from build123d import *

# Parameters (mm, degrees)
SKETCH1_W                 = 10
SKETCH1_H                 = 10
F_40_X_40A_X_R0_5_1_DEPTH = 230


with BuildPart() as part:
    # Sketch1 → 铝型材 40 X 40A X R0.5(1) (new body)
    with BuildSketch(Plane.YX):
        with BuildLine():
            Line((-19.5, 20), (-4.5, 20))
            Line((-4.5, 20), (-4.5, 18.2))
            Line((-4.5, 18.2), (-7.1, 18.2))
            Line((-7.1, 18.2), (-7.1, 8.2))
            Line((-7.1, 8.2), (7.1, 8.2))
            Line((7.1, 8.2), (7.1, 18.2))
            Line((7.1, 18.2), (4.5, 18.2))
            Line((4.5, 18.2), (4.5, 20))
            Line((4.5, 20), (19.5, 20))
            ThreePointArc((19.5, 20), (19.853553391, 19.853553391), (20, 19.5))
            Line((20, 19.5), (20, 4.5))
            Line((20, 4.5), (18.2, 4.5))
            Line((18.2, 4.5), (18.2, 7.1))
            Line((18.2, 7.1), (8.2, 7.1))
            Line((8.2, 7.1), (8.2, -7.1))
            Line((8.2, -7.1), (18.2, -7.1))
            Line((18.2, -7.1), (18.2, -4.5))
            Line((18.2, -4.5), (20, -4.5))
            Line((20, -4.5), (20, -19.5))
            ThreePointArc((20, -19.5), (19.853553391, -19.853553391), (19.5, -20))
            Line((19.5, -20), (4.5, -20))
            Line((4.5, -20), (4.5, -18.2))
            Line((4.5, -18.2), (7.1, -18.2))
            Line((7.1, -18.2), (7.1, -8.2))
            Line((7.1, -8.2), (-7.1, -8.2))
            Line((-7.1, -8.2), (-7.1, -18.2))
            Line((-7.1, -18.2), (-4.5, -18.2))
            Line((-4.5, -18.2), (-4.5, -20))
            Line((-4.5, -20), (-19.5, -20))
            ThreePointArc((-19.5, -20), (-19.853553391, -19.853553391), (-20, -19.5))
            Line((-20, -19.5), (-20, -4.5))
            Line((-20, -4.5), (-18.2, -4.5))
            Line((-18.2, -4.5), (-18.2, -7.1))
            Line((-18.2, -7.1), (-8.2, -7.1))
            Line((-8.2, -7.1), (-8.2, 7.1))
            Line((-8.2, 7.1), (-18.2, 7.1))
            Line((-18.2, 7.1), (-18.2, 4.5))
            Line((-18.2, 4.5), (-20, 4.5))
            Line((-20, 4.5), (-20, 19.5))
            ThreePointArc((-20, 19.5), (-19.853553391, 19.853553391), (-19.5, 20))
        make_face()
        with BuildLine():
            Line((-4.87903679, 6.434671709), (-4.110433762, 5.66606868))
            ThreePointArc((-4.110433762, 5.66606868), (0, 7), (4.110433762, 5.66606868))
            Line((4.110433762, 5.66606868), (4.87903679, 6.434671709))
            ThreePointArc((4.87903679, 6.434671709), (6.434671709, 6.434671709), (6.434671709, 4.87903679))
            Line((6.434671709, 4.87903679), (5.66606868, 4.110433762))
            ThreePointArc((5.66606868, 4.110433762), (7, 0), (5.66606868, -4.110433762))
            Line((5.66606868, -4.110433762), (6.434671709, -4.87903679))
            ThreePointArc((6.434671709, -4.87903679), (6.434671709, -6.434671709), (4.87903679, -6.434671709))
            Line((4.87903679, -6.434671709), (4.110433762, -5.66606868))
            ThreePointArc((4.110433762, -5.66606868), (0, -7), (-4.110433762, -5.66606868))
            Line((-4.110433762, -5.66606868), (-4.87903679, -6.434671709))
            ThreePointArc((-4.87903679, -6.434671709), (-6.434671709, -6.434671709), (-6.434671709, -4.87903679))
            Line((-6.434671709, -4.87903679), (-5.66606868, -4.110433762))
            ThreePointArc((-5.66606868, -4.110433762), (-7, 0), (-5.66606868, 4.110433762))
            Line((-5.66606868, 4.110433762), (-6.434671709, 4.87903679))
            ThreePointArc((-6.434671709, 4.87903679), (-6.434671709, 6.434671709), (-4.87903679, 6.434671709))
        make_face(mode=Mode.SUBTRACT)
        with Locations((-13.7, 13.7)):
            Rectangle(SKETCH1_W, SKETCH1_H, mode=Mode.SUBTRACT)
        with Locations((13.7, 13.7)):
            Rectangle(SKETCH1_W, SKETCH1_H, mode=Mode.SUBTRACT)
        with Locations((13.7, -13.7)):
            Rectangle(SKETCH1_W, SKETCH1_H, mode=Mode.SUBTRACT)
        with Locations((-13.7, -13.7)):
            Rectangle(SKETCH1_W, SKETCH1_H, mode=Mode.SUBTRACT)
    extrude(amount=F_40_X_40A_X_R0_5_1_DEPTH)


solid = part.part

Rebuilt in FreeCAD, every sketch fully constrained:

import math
import FreeCAD as App
import Part
import Sketcher


def add_polygon(sketch, points):
    """Adds a closed chain of lines whose ends are joined by coincident constraints."""
    first, n = sketch.GeometryCount, len(points)
    for a, b in zip(points, points[1:] + points[:1]):
        sketch.addGeometry(Part.LineSegment(App.Vector(*a, 0), App.Vector(*b, 0)), False)
    for i in range(n):
        sketch.addConstraint(Sketcher.Constraint("Coincident", first + i, 2, first + (i + 1) % n, 1))

doc = App.newDocument("Part")
params = doc.addObject("Spreadsheet::Sheet", "Params")
for row, (alias, value) in enumerate([
    ("sketch1_radius", "7 mm"),
    ("sketch1_radius2", "0.5 mm"),
    ("sketch1_radius3", "1.1 mm"),
    ("sketch1_width", "15 mm"),
    ("sketch1_width2", "10 mm"),
    ("pad1_length", "230 mm"),
], start=1):
    params.set(f"A{row}", alias)
    params.set(f"B{row}", "=" + value)
    params.setAlias(f"B{row}", alias)

body = doc.addObject("PartDesign::Body", "Body")

# Sketch on XY plane
sketch1 = doc.addObject("Sketcher::SketchObject", "Sketch")
body.addObject(sketch1)
sketch1.AttachmentSupport = (doc.XY_Plane, [""])
sketch1.MapMode = "FlatFace"
sketch1.addGeometry(Part.LineSegment(App.Vector(20, -4.5, 0), App.Vector(20, -19.5, 0)), False)  # 0
sketch1.addGeometry(Part.ArcOfCircle(Part.Circle(App.Vector(19.5, -19.5, 0), App.Vector(0, 0, 1), 0.5), math.radians(-90), math.radians(0)), False)  # 1
sketch1.addGeometry(Part.LineSegment(App.Vector(19.5, -20, 0), App.Vector(4.5, -20, 0)), False)  # 2
sketch1.addGeometry(Part.LineSegment(App.Vector(4.5, -20, 0), App.Vector(4.5, -18.2, 0)), False)  # 3
sketch1.addGeometry(Part.LineSegment(App.Vector(4.5, -18.2, 0), App.Vector(7.1, -18.2, 0)), False)  # 4
sketch1.addGeometry(Part.LineSegment(App.Vector(7.1, -18.2, 0), App.Vector(7.1, -8.2, 0)), False)  # 5
sketch1.addGeometry(Part.LineSegment(App.Vector(7.1, -8.2, 0), App.Vector(-7.1, -8.2, 0)), False)  # 6
sketch1.addGeometry(Part.LineSegment(App.Vector(-7.1, -8.2, 0), App.Vector(-7.1, -18.2, 0)), False)  # 7
sketch1.addGeometry(Part.LineSegment(App.Vector(-7.1, -18.2, 0), App.Vector(-4.5, -18.2, 0)), False)  # 8
sketch1.addGeometry(Part.LineSegment(App.Vector(-4.5, -18.2, 0), App.Vector(-4.5, -20, 0)), False)  # 9
sketch1.addGeometry(Part.LineSegment(App.Vector(-4.5, -20, 0), App.Vector(-19.5, -20, 0)), False)  # 10
sketch1.addGeometry(Part.ArcOfCircle(Part.Circle(App.Vector(-19.5, -19.5, 0), App.Vector(0, 0, 1), 0.5), math.radians(180), math.radians(270)), False)  # 11
sketch1.addGeometry(Part.LineSegment(App.Vector(-20, -19.5, 0), App.Vector(-20, -4.5, 0)), False)  # 12
sketch1.addGeometry(Part.LineSegment(App.Vector(-20, -4.5, 0), App.Vector(-18.2, -4.5, 0)), False)  # 13
sketch1.addGeometry(Part.LineSegment(App.Vector(-18.2, -4.5, 0), App.Vector(-18.2, -7.1, 0)), False)  # 14
sketch1.addGeometry(Part.LineSegment(App.Vector(-18.2, -7.1, 0), App.Vector(-8.2, -7.1, 0)), False)  # 15
sketch1.addGeometry(Part.LineSegment(App.Vector(-8.2, -7.1, 0), App.Vector(-8.2, 7.1, 0)), False)  # 16
sketch1.addGeometry(Part.LineSegment(App.Vector(-8.2, 7.1, 0), App.Vector(-18.2, 7.1, 0)), False)  # 17
sketch1.addGeometry(Part.LineSegment(App.Vector(-18.2, 7.1, 0), App.Vector(-18.2, 4.5, 0)), False)  # 18
sketch1.addGeometry(Part.LineSegment(App.Vector(-18.2, 4.5, 0), App.Vector(-20, 4.5, 0)), False)  # 19
sketch1.addGeometry(Part.LineSegment(App.Vector(-20, 4.5, 0), App.Vector(-20, 19.5, 0)), False)  # 20
sketch1.addGeometry(Part.ArcOfCircle(Part.Circle(App.Vector(-19.5, 19.5, 0), App.Vector(0, 0, 1), 0.5), math.radians(90), math.radians(180)), False)  # 21
sketch1.addGeometry(Part.LineSegment(App.Vector(-19.5, 20, 0), App.Vector(-4.5, 20, 0)), False)  # 22
sketch1.addGeometry(Part.LineSegment(App.Vector(-4.5, 20, 0), App.Vector(-4.5, 18.2, 0)), False)  # 23
sketch1.addGeometry(Part.LineSegment(App.Vector(-4.5, 18.2, 0), App.Vector(-7.1, 18.2, 0)), False)  # 24
sketch1.addGeometry(Part.LineSegment(App.Vector(-7.1, 18.2, 0), App.Vector(-7.1, 8.2, 0)), False)  # 25
sketch1.addGeometry(Part.LineSegment(App.Vector(-7.1, 8.2, 0), App.Vector(7.1, 8.2, 0)), False)  # 26
sketch1.addGeometry(Part.LineSegment(App.Vector(7.1, 8.2, 0), App.Vector(7.1, 18.2, 0)), False)  # 27
sketch1.addGeometry(Part.LineSegment(App.Vector(7.1, 18.2, 0), App.Vector(4.5, 18.2, 0)), False)  # 28
sketch1.addGeometry(Part.LineSegment(App.Vector(4.5, 18.2, 0), App.Vector(4.5, 20, 0)), False)  # 29
sketch1.addGeometry(Part.LineSegment(App.Vector(4.5, 20, 0), App.Vector(19.5, 20, 0)), False)  # 30
sketch1.addGeometry(Part.ArcOfCircle(Part.Circle(App.Vector(19.5, 19.5, 0), App.Vector(0, 0, 1), 0.5), math.radians(0), math.radians(90)), False)  # 31
sketch1.addGeometry(Part.LineSegment(App.Vector(20, 19.5, 0), App.Vector(20, 4.5, 0)), False)  # 32
sketch1.addGeometry(Part.LineSegment(App.Vector(20, 4.5, 0), App.Vector(18.2, 4.5, 0)), False)  # 33
sketch1.addGeometry(Part.LineSegment(App.Vector(18.2, 4.5, 0), App.Vector(18.2, 7.1, 0)), False)  # 34
sketch1.addGeometry(Part.LineSegment(App.Vector(18.2, 7.1, 0), App.Vector(8.2, 7.1, 0)), False)  # 35
sketch1.addGeometry(Part.LineSegment(App.Vector(8.2, 7.1, 0), App.Vector(8.2, -7.1, 0)), False)  # 36
sketch1.addGeometry(Part.LineSegment(App.Vector(8.2, -7.1, 0), App.Vector(18.2, -7.1, 0)), False)  # 37
sketch1.addGeometry(Part.LineSegment(App.Vector(18.2, -7.1, 0), App.Vector(18.2, -4.5, 0)), False)  # 38
sketch1.addGeometry(Part.LineSegment(App.Vector(18.2, -4.5, 0), App.Vector(20, -4.5, 0)), False)  # 39
add_polygon(sketch1, [(-18.7, 8.7), (-8.7, 8.7), (-8.7, 18.7), (-18.7, 18.7)])  # lines 40-43
sketch1.addGeometry(Part.LineSegment(App.Vector(6.43, -4.88, 0), App.Vector(5.67, -4.11, 0)), False)  # 44
sketch1.addGeometry(Part.ArcOfCircle(Part.Circle(App.Vector(0, 0, 0), App.Vector(0, 0, 1), 7), math.radians(-36), math.radians(36)), False)  # 45
sketch1.addGeometry(Part.LineSegment(App.Vector(5.67, 4.11, 0), App.Vector(6.43, 4.88, 0)), False)  # 46
sketch1.addGeometry(Part.ArcOfCircle(Part.Circle(App.Vector(5.66, 5.66, 0), App.Vector(0, 0, 1), 1.1), math.radians(-45), math.radians(135)), False)  # 47
sketch1.addGeometry(Part.LineSegment(App.Vector(4.88, 6.43, 0), App.Vector(4.11, 5.67, 0)), False)  # 48
sketch1.addGeometry(Part.ArcOfCircle(Part.Circle(App.Vector(0, 0, 0), App.Vector(0, 0, 1), 7), math.radians(54), math.radians(126)), False)  # 49
sketch1.addGeometry(Part.LineSegment(App.Vector(-4.11, 5.67, 0), App.Vector(-4.88, 6.43, 0)), False)  # 50
sketch1.addGeometry(Part.ArcOfCircle(Part.Circle(App.Vector(-5.66, 5.66, 0), App.Vector(0, 0, 1), 1.1), math.radians(45), math.radians(225)), False)  # 51
sketch1.addGeometry(Part.LineSegment(App.Vector(-6.43, 4.88, 0), App.Vector(-5.67, 4.11, 0)), False)  # 52
sketch1.addGeometry(Part.ArcOfCircle(Part.Circle(App.Vector(0, 0, 0), App.Vector(0, 0, 1), 7), math.radians(144), math.radians(216)), False)  # 53
sketch1.addGeometry(Part.LineSegment(App.Vector(-5.67, -4.11, 0), App.Vector(-6.43, -4.88, 0)), False)  # 54
sketch1.addGeometry(Part.ArcOfCircle(Part.Circle(App.Vector(-5.66, -5.66, 0), App.Vector(0, 0, 1), 1.1), math.radians(135), math.radians(315)), False)  # 55
sketch1.addGeometry(Part.LineSegment(App.Vector(-4.88, -6.43, 0), App.Vector(-4.11, -5.67, 0)), False)  # 56
sketch1.addGeometry(Part.ArcOfCircle(Part.Circle(App.Vector(0, 0, 0), App.Vector(0, 0, 1), 7), math.radians(-126), math.radians(-54)), False)  # 57
sketch1.addGeometry(Part.LineSegment(App.Vector(4.11, -5.67, 0), App.Vector(4.88, -6.43, 0)), False)  # 58
sketch1.addGeometry(Part.ArcOfCircle(Part.Circle(App.Vector(5.66, -5.66, 0), App.Vector(0, 0, 1), 1.1), math.radians(-135), math.radians(45)), False)  # 59
add_polygon(sketch1, [(-18.7, -18.7), (-8.7, -18.7), (-8.7, -8.7), (-18.7, -8.7)])  # lines 60-63
add_polygon(sketch1, [(8.7, 8.7), (18.7, 8.7), (18.7, 18.7), (8.7, 18.7)])  # lines 64-67
add_polygon(sketch1, [(8.7, -18.7), (18.7, -18.7), (18.7, -8.7), (8.7, -8.7)])  # lines 68-71
sketch1.addConstraint(Sketcher.Constraint("Tangent", 0, 2, 1, 2))
sketch1.addConstraint(Sketcher.Constraint("Tangent", 1, 1, 2, 1))
sketch1.addConstraint(Sketcher.Constraint("Coincident", 2, 2, 3, 1))
sketch1.addConstraint(Sketcher.Constraint("Coincident", 3, 2, 4, 1))
sketch1.addConstraint(Sketcher.Constraint("Coincident", 4, 2, 5, 1))
sketch1.addConstraint(Sketcher.Constraint("Coincident", 5, 2, 6, 1))
sketch1.addConstraint(Sketcher.Constraint("Coincident", 6, 2, 7, 1))
sketch1.addConstraint(Sketcher.Constraint("Coincident", 7, 2, 8, 1))
sketch1.addConstraint(Sketcher.Constraint("Coincident", 8, 2, 9, 1))
sketch1.addConstraint(Sketcher.Constraint("Coincident", 9, 2, 10, 1))
sketch1.addConstraint(Sketcher.Constraint("Tangent", 10, 2, 11, 2))
sketch1.addConstraint(Sketcher.Constraint("Tangent", 11, 1, 12, 1))
sketch1.addConstraint(Sketcher.Constraint("Coincident", 12, 2, 13, 1))
sketch1.addConstraint(Sketcher.Constraint("Coincident", 13, 2, 14, 1))
sketch1.addConstraint(Sketcher.Constraint("Coincident", 14, 2, 15, 1))
sketch1.addConstraint(Sketcher.Constraint("Coincident", 15, 2, 16, 1))
sketch1.addConstraint(Sketcher.Constraint("Coincident", 16, 2, 17, 1))
sketch1.addConstraint(Sketcher.Constraint("Coincident", 17, 2, 18, 1))
sketch1.addConstraint(Sketcher.Constraint("Coincident", 18, 2, 19, 1))
sketch1.addConstraint(Sketcher.Constraint("Coincident", 19, 2, 20, 1))
sketch1.addConstraint(Sketcher.Constraint("Tangent", 20, 2, 21, 2))
sketch1.addConstraint(Sketcher.Constraint("Tangent", 21, 1, 22, 1))
sketch1.addConstraint(Sketcher.Constraint("Coincident", 22, 2, 23, 1))
sketch1.addConstraint(Sketcher.Constraint("Coincident", 23, 2, 24, 1))
sketch1.addConstraint(Sketcher.Constraint("Coincident", 24, 2, 25, 1))
sketch1.addConstraint(Sketcher.Constraint("Coincident", 25, 2, 26, 1))
sketch1.addConstraint(Sketcher.Constraint("Coincident", 26, 2, 27, 1))
sketch1.addConstraint(Sketcher.Constraint("Coincident", 27, 2, 28, 1))
sketch1.addConstraint(Sketcher.Constraint("Coincident", 28, 2, 29, 1))
sketch1.addConstraint(Sketcher.Constraint("Coincident", 29, 2, 30, 1))
sketch1.addConstraint(Sketcher.Constraint("Tangent", 30, 2, 31, 2))
sketch1.addConstraint(Sketcher.Constraint("Tangent", 31, 1, 32, 1))
sketch1.addConstraint(Sketcher.Constraint("Coincident", 32, 2, 33, 1))
sketch1.addConstraint(Sketcher.Constraint("Coincident", 33, 2, 34, 1))
sketch1.addConstraint(Sketcher.Constraint("Coincident", 34, 2, 35, 1))
sketch1.addConstraint(Sketcher.Constraint("Coincident", 35, 2, 36, 1))
sketch1.addConstraint(Sketcher.Constraint("Coincident", 36, 2, 37, 1))
sketch1.addConstraint(Sketcher.Constraint("Coincident", 37, 2, 38, 1))
sketch1.addConstraint(Sketcher.Constraint("Coincident", 38, 2, 39, 1))
sketch1.addConstraint(Sketcher.Constraint("Coincident", 39, 2, 0, 1))
sketch1.addConstraint(Sketcher.Constraint("Coincident", 44, 2, 45, 1))
sketch1.addConstraint(Sketcher.Constraint("Coincident", 45, 2, 46, 1))
sketch1.addConstraint(Sketcher.Constraint("Tangent", 46, 2, 47, 1))
sketch1.addConstraint(Sketcher.Constraint("Tangent", 47, 2, 48, 1))
sketch1.addConstraint(Sketcher.Constraint("Coincident", 48, 2, 49, 1))
sketch1.addConstraint(Sketcher.Constraint("Coincident", 49, 2, 50, 1))
sketch1.addConstraint(Sketcher.Constraint("Tangent", 50, 2, 51, 1))
sketch1.addConstraint(Sketcher.Constraint("Tangent", 51, 2, 52, 1))
sketch1.addConstraint(Sketcher.Constraint("Coincident", 52, 2, 53, 1))
sketch1.addConstraint(Sketcher.Constraint("Coincident", 53, 2, 54, 1))
sketch1.addConstraint(Sketcher.Constraint("Tangent", 54, 2, 55, 1))
sketch1.addConstraint(Sketcher.Constraint("Tangent", 55, 2, 56, 1))
sketch1.addConstraint(Sketcher.Constraint("Coincident", 56, 2, 57, 1))
sketch1.addConstraint(Sketcher.Constraint("Coincident", 57, 2, 58, 1))
sketch1.addConstraint(Sketcher.Constraint("Tangent", 58, 2, 59, 1))
sketch1.addConstraint(Sketcher.Constraint("Tangent", 59, 2, 44, 1))
sketch1.addConstraint(Sketcher.Constraint("Vertical", 0))
sketch1.addConstraint(Sketcher.Constraint("Horizontal", 2))
sketch1.addConstraint(Sketcher.Constraint("Vertical", 3))
sketch1.addConstraint(Sketcher.Constraint("Horizontal", 4))
sketch1.addConstraint(Sketcher.Constraint("Vertical", 5))
sketch1.addConstraint(Sketcher.Constraint("Horizontal", 6))
sketch1.addConstraint(Sketcher.Constraint("Vertical", 7))
sketch1.addConstraint(Sketcher.Constraint("Horizontal", 8))
sketch1.addConstraint(Sketcher.Constraint("Vertical", 9))
sketch1.addConstraint(Sketcher.Constraint("Horizontal", 10))
sketch1.addConstraint(Sketcher.Constraint("Vertical", 12))
sketch1.addConstraint(Sketcher.Constraint("Horizontal", 13))
sketch1.addConstraint(Sketcher.Constraint("Vertical", 14))
sketch1.addConstraint(Sketcher.Constraint("Horizontal", 15))
sketch1.addConstraint(Sketcher.Constraint("Vertical", 16))
sketch1.addConstraint(Sketcher.Constraint("Horizontal", 17))
sketch1.addConstraint(Sketcher.Constraint("Vertical", 18))
sketch1.addConstraint(Sketcher.Constraint("Horizontal", 19))
sketch1.addConstraint(Sketcher.Constraint("Vertical", 20))
sketch1.addConstraint(Sketcher.Constraint("Horizontal", 22))
sketch1.addConstraint(Sketcher.Constraint("Vertical", 23))
sketch1.addConstraint(Sketcher.Constraint("Horizontal", 24))
sketch1.addConstraint(Sketcher.Constraint("Vertical", 25))
sketch1.addConstraint(Sketcher.Constraint("Horizontal", 26))
sketch1.addConstraint(Sketcher.Constraint("Vertical", 27))
sketch1.addConstraint(Sketcher.Constraint("Horizontal", 28))
sketch1.addConstraint(Sketcher.Constraint("Vertical", 29))
sketch1.addConstraint(Sketcher.Constraint("Horizontal", 30))
sketch1.addConstraint(Sketcher.Constraint("Vertical", 32))
sketch1.addConstraint(Sketcher.Constraint("Horizontal", 33))
sketch1.addConstraint(Sketcher.Constraint("Vertical", 34))
sketch1.addConstraint(Sketcher.Constraint("Horizontal", 35))
sketch1.addConstraint(Sketcher.Constraint("Vertical", 36))
sketch1.addConstraint(Sketcher.Constraint("Horizontal", 37))
sketch1.addConstraint(Sketcher.Constraint("Vertical", 38))
sketch1.addConstraint(Sketcher.Constraint("Horizontal", 39))
sketch1.addConstraint(Sketcher.Constraint("Horizontal", 40))
sketch1.addConstraint(Sketcher.Constraint("Vertical", 41))
sketch1.addConstraint(Sketcher.Constraint("Horizontal", 42))
sketch1.addConstraint(Sketcher.Constraint("Vertical", 43))
sketch1.addConstraint(Sketcher.Constraint("Horizontal", 60))
sketch1.addConstraint(Sketcher.Constraint("Vertical", 61))
sketch1.addConstraint(Sketcher.Constraint("Horizontal", 62))
sketch1.addConstraint(Sketcher.Constraint("Vertical", 63))
sketch1.addConstraint(Sketcher.Constraint("Horizontal", 64))
sketch1.addConstraint(Sketcher.Constraint("Vertical", 65))
sketch1.addConstraint(Sketcher.Constraint("Horizontal", 66))
sketch1.addConstraint(Sketcher.Constraint("Vertical", 67))
sketch1.addConstraint(Sketcher.Constraint("Horizontal", 68))
sketch1.addConstraint(Sketcher.Constraint("Vertical", 69))
sketch1.addConstraint(Sketcher.Constraint("Horizontal", 70))
sketch1.addConstraint(Sketcher.Constraint("Vertical", 71))
sketch1.addConstraint(Sketcher.Constraint("Coincident", 45, 3, -1, 1))
sketch1.addConstraint(Sketcher.Constraint("Coincident", 49, 3, -1, 1))
sketch1.addConstraint(Sketcher.Constraint("Coincident", 53, 3, -1, 1))
sketch1.addConstraint(Sketcher.Constraint("Coincident", 57, 3, -1, 1))
sketch1.addConstraint(Sketcher.Constraint("Equal", 1, 11))
sketch1.addConstraint(Sketcher.Constraint("Equal", 11, 21))
sketch1.addConstraint(Sketcher.Constraint("Equal", 21, 31))
sketch1.addConstraint(Sketcher.Constraint("Equal", 45, 49))
sketch1.addConstraint(Sketcher.Constraint("Equal", 47, 51))
sketch1.addConstraint(Sketcher.Constraint("Equal", 49, 53))
sketch1.addConstraint(Sketcher.Constraint("Equal", 51, 55))
sketch1.addConstraint(Sketcher.Constraint("Equal", 53, 57))
sketch1.addConstraint(Sketcher.Constraint("Equal", 55, 59))
sketch1.addConstraint(Sketcher.Constraint("Symmetric", 1, 3, 21, 3, -1, 1))
sketch1.addConstraint(Sketcher.Constraint("Symmetric", 11, 3, 31, 3, -1, 1))
sketch1.addConstraint(Sketcher.Constraint("Symmetric", 47, 3, 55, 3, -1, 1))
sketch1.addConstraint(Sketcher.Constraint("Symmetric", 51, 3, 59, 3, -1, 1))
sketch1.addConstraint(Sketcher.Constraint("Symmetric", 3, 2, 23, 2, -1, 1))
sketch1.addConstraint(Sketcher.Constraint("Symmetric", 5, 2, 25, 2, -1, 1))
sketch1.addConstraint(Sketcher.Constraint("Symmetric", 7, 2, 27, 2, -1, 1))
sketch1.addConstraint(Sketcher.Constraint("Symmetric", 13, 2, 33, 2, -1, 1))
sketch1.addConstraint(Sketcher.Constraint("Symmetric", 15, 2, 35, 2, -1, 1))
sketch1.addConstraint(Sketcher.Constraint("Symmetric", 17, 2, 37, 2, -1, 1))
sketch1.addConstraint(Sketcher.Constraint("Symmetric", 62, 2, 64, 2, -1, 1))
sketch1.addConstraint(Sketcher.Constraint("Symmetric", 60, 2, 66, 2, -1, 1))
sketch1.addConstraint(Sketcher.Constraint("Symmetric", 42, 2, 68, 2, -1, 1))
sketch1.addConstraint(Sketcher.Constraint("Symmetric", 40, 2, 70, 2, -1, 1))
sketch1.addConstraint(Sketcher.Constraint("Symmetric", 1, 3, 11, 3, -2))
sketch1.addConstraint(Sketcher.Constraint("Symmetric", 47, 3, 51, 3, -2))
sketch1.addConstraint(Sketcher.Constraint("Symmetric", 4, 2, 7, 2, -2))
sketch1.addConstraint(Sketcher.Constraint("Symmetric", 18, 2, 33, 2, -2))
sketch1.addConstraint(Sketcher.Constraint("Symmetric", 43, 2, 64, 2, -2))
sketch1.addConstraint(Sketcher.Constraint("Symmetric", 41, 2, 66, 2, -2))
sketch1.addConstraint(Sketcher.Constraint("Perpendicular", 44, 46))
sketch1.addConstraint(Sketcher.Constraint("Parallel", 46, 48))
sketch1.addConstraint(Sketcher.Constraint("Perpendicular", 48, 50))
sketch1.addConstraint(Sketcher.Constraint("Parallel", 50, 52))
sketch1.addConstraint(Sketcher.Constraint("Perpendicular", 52, 54))
sketch1.addConstraint(Sketcher.Constraint("Parallel", 54, 56))
sketch1.addConstraint(Sketcher.Constraint("Perpendicular", 56, 58))
sketch1.addConstraint(Sketcher.Constraint("Horizontal", 17, 2, 34, 2))
sketch1.addConstraint(Sketcher.Constraint("Horizontal", 13, 2, 38, 2))
sketch1.addConstraint(Sketcher.Constraint("Horizontal", 48, 2, 49, 2))
sketch1.addConstraint(Sketcher.Constraint("Vertical", 9, 2, 22, 2))
sketch1.addConstraint(Sketcher.Constraint("Vertical", 3, 2, 28, 2))
sketch1.addConstraint(Sketcher.Constraint("Equal", 37, 40))
sketch1.addConstraint(Sketcher.Constraint("Equal", 30, 0))
sketch1.addConstraint(Sketcher.Constraint("Equal", 39, 3))
sketch1.addConstraint(Sketcher.Constraint("Equal", 70, 5))
sketch1.addConstraint(Sketcher.Constraint("Equal", 28, 14))
sketch1.addConstraint(Sketcher.Constraint("Equal", 26, 16))
sketch1.addConstraint(Sketcher.Constraint("Equal", 27, 41))
sketch1.addConstraint(Sketcher.Constraint("Equal", 46, 48))
sketch1.addConstraint(Sketcher.Constraint("Radius", 45, 7.0))
sketch1.addConstraint(Sketcher.Constraint("Radius", 1, 0.5))
sketch1.addConstraint(Sketcher.Constraint("Radius", 47, 1.1))
sketch1.addConstraint(Sketcher.Constraint("DistanceX", 2, 2, 2, 1, 15.0))
sketch1.addConstraint(Sketcher.Constraint("DistanceX", 15, 1, 15, 2, 10.0))
sketch1.addConstraint(Sketcher.Constraint("DistanceX", 4, 1, 4, 2, 2.6))
sketch1.addConstraint(Sketcher.Constraint("DistanceX", 6, 2, 6, 1, 14.2))
sketch1.addConstraint(Sketcher.Constraint("DistanceX", 13, 1, 13, 2, 1.8))
sketch1.addConstraint(Sketcher.Constraint("DistanceX", 40, 2, -1, 1, 8.7))
sketch1.addConstraint(Sketcher.Constraint("DistanceY", -1, 1, 40, 2, 8.7))
sketch1.addConstraint(Sketcher.Constraint("Distance", 44, 1.086969))
sketch1.setExpression("Constraints[177]", "Params.sketch1_radius")
sketch1.setExpression("Constraints[178]", "Params.sketch1_radius2")
sketch1.setExpression("Constraints[179]", "Params.sketch1_radius3")
sketch1.setExpression("Constraints[180]", "Params.sketch1_width")
sketch1.setExpression("Constraints[181]", "Params.sketch1_width2")
pad1 = doc.addObject("PartDesign::Pad", "Pad")
body.addObject(pad1)
pad1.Profile = sketch1
pad1.setExpression("Length", "Params.pad1_length")
pad1.Reversed = True

doc.recompute()
